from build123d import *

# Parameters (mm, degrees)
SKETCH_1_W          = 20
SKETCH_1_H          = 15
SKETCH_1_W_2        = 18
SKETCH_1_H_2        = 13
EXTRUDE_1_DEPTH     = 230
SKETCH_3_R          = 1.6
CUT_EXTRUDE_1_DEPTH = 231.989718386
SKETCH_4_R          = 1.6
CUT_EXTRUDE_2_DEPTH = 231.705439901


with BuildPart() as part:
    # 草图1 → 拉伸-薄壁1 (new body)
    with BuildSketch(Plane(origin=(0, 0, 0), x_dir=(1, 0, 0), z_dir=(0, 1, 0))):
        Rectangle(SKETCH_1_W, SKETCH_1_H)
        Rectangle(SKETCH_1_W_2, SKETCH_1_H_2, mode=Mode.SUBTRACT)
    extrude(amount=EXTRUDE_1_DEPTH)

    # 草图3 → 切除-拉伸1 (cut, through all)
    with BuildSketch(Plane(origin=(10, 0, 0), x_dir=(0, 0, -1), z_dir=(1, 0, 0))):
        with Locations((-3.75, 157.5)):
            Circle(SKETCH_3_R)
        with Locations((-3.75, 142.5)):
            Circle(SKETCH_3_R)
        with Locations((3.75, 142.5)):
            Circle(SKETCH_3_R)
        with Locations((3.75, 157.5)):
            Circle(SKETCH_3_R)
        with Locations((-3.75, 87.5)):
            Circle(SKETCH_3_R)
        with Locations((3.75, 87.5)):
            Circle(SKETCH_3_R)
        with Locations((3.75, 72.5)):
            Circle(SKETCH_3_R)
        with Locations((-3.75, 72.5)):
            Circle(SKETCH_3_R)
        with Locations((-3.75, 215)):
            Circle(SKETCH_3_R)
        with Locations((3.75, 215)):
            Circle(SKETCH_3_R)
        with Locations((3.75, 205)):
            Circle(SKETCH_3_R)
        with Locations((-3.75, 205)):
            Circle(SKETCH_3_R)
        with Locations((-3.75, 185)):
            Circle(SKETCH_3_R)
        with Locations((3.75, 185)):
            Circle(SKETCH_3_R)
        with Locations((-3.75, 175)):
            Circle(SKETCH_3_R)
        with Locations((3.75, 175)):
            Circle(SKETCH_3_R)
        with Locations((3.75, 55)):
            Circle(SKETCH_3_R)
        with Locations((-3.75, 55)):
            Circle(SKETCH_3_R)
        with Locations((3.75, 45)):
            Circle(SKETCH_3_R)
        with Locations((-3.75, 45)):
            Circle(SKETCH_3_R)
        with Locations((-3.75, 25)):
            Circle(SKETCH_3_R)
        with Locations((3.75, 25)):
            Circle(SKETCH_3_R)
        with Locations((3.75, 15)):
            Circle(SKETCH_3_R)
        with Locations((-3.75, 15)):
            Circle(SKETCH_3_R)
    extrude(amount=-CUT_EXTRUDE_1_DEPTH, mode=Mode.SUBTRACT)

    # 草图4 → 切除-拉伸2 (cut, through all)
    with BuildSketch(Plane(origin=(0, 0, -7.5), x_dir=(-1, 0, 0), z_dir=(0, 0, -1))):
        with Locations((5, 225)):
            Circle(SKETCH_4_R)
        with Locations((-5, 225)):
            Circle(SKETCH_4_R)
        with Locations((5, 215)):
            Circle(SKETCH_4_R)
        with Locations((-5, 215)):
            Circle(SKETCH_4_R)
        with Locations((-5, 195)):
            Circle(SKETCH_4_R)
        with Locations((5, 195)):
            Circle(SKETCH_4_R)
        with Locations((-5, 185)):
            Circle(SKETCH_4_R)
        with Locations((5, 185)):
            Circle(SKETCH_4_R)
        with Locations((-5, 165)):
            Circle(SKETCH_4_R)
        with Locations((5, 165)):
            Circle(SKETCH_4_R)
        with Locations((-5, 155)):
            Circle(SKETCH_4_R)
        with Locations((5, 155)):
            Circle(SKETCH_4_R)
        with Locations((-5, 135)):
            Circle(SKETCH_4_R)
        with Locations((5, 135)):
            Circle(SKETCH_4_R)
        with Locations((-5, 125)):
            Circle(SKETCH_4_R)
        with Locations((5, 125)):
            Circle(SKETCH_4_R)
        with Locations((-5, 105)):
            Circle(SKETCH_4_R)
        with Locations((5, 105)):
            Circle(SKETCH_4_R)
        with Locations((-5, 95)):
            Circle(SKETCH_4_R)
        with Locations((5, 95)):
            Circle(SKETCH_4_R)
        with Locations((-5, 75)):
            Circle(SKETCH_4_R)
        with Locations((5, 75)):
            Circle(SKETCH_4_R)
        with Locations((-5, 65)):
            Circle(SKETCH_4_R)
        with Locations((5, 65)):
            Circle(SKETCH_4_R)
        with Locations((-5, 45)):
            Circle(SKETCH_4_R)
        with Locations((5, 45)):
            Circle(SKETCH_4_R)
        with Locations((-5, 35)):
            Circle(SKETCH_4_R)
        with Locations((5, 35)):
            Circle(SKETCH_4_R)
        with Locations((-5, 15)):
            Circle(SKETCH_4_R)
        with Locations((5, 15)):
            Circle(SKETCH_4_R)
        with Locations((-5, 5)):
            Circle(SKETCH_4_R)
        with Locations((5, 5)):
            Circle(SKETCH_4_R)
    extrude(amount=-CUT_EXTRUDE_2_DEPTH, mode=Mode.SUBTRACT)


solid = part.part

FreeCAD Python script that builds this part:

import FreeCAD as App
import Part
import Sketcher


def add_polygon(sketch, points):
    """Adds a closed chain of lines whose ends are joined by coincident constraints."""
    first, n = sketch.GeometryCount, len(points)
    for a, b in zip(points, points[1:] + points[:1]):
        sketch.addGeometry(Part.LineSegment(App.Vector(*a, 0), App.Vector(*b, 0)), False)
    for i in range(n):
        sketch.addConstraint(Sketcher.Constraint("Coincident", first + i, 2, first + (i + 1) % n, 1))

doc = App.newDocument("Part")
body = doc.addObject("PartDesign::Body", "Body")

# Sketch on XZ plane
sketch1 = body.newObject("Sketcher::SketchObject", "Sketch")
sketch1.AttachmentSupport = (doc.getObject("XZ_Plane"), [""])
sketch1.MapMode = "FlatFace"
add_polygon(sketch1, [(-10, -8), (-10, 8), (10, 8), (10, -8)])  # lines 0-3
add_polygon(sketch1, [(9, 6), (-9, 6), (-9, -6), (9, -6)])  # lines 4-7
sketch1.addConstraint([
    Sketcher.Constraint("Vertical", 0),
    Sketcher.Constraint("Horizontal", 1),
    Sketcher.Constraint("Vertical", 2),
    Sketcher.Constraint("Horizontal", 3),
    Sketcher.Constraint("Horizontal", 4),
    Sketcher.Constraint("Vertical", 5),
    Sketcher.Constraint("Horizontal", 6),
    Sketcher.Constraint("Vertical", 7),
    Sketcher.Constraint("Symmetric", 0, 2, 2, 2, -1, 1),
    Sketcher.Constraint("Symmetric", 4, 2, 6, 2, -1, 1),
    Sketcher.Constraint("DistanceX", 1, 1, 1, 2, 20.0),
    Sketcher.Constraint("DistanceX", 4, 2, 4, 1, 18.0),
    Sketcher.Constraint("DistanceY", 0, 1, 0, 2, 15.0),
    Sketcher.Constraint("DistanceY", 5, 2, 5, 1, 13.0),
])
pad1 = body.newObject("PartDesign::Pad", "Pad")
pad1.Profile = sketch1
pad1.Length = 230
pad1.Reversed = True

# Sketch on YZ plane
sketch2 = body.newObject("Sketcher::SketchObject", "Sketch001")
sketch2.AttachmentSupport = (doc.getObject("YZ_Plane"), [""])
sketch2.MapMode = "FlatFace"
sketch2.AttachmentOffset = App.Placement(App.Vector(0, 0, 10), App.Rotation())
sketch2.addGeometry([
    Part.Circle(App.Vector(157.5, 3.8, 0), App.Vector(0, 0, 1), 1.6),  # 0
    Part.Circle(App.Vector(142.5, 3.8, 0), App.Vector(0, 0, 1), 1.6),  # 1
    Part.Circle(App.Vector(142.5, -3.8, 0), App.Vector(0, 0, 1), 1.6),  # 2
    Part.Circle(App.Vector(157.5, -3.8, 0), App.Vector(0, 0, 1), 1.6),  # 3
    Part.Circle(App.Vector(87.5, 3.8, 0), App.Vector(0, 0, 1), 1.6),  # 4
    Part.Circle(App.Vector(87.5, -3.8, 0), App.Vector(0, 0, 1), 1.6),  # 5
    Part.Circle(App.Vector(72.5, -3.8, 0), App.Vector(0, 0, 1), 1.6),  # 6
    Part.Circle(App.Vector(72.5, 3.8, 0), App.Vector(0, 0, 1), 1.6),  # 7
    Part.Circle(App.Vector(215, 3.8, 0), App.Vector(0, 0, 1), 1.6),  # 8
    Part.Circle(App.Vector(215, -3.8, 0), App.Vector(0, 0, 1), 1.6),  # 9
    Part.Circle(App.Vector(205, -3.8, 0), App.Vector(0, 0, 1), 1.6),  # 10
    Part.Circle(App.Vector(205, 3.8, 0), App.Vector(0, 0, 1), 1.6),  # 11
    Part.Circle(App.Vector(185, 3.8, 0), App.Vector(0, 0, 1), 1.6),  # 12
    Part.Circle(App.Vector(185, -3.8, 0), App.Vector(0, 0, 1), 1.6),  # 13
    Part.Circle(App.Vector(175, 3.8, 0), App.Vector(0, 0, 1), 1.6),  # 14
    Part.Circle(App.Vector(175, -3.8, 0), App.Vector(0, 0, 1), 1.6),  # 15
    Part.Circle(App.Vector(55, -3.8, 0), App.Vector(0, 0, 1), 1.6),  # 16
    Part.Circle(App.Vector(55, 3.8, 0), App.Vector(0, 0, 1), 1.6),  # 17
    Part.Circle(App.Vector(45, -3.8, 0), App.Vector(0, 0, 1), 1.6),  # 18
    Part.Circle(App.Vector(45, 3.8, 0), App.Vector(0, 0, 1), 1.6),  # 19
    Part.Circle(App.Vector(25, 3.8, 0), App.Vector(0, 0, 1), 1.6),  # 20
    Part.Circle(App.Vector(25, -3.8, 0), App.Vector(0, 0, 1), 1.6),  # 21
    Part.Circle(App.Vector(15, -3.8, 0), App.Vector(0, 0, 1), 1.6),  # 22
    Part.Circle(App.Vector(15, 3.8, 0), App.Vector(0, 0, 1), 1.6),  # 23
], False)
sketch2.addConstraint([
    Sketcher.Constraint("Equal", 0, 1),
    Sketcher.Constraint("Equal", 1, 2),
    Sketcher.Constraint("Equal", 2, 3),
    Sketcher.Constraint("Equal", 3, 4),
    Sketcher.Constraint("Equal", 4, 5),
    Sketcher.Constraint("Equal", 5, 6),
    Sketcher.Constraint("Equal", 6, 7),
    Sketcher.Constraint("Equal", 7, 8),
    Sketcher.Constraint("Equal", 8, 9),
    Sketcher.Constraint("Equal", 9, 10),
    Sketcher.Constraint("Equal", 10, 11),
    Sketcher.Constraint("Equal", 11, 12),
    Sketcher.Constraint("Equal", 12, 13),
    Sketcher.Constraint("Equal", 13, 14),
    Sketcher.Constraint("Equal", 14, 15),
    Sketcher.Constraint("Equal", 15, 16),
    Sketcher.Constraint("Equal", 16, 17),
    Sketcher.Constraint("Equal", 17, 18),
    Sketcher.Constraint("Equal", 18, 19),
    Sketcher.Constraint("Equal", 19, 20),
    Sketcher.Constraint("Equal", 20, 21),
    Sketcher.Constraint("Equal", 21, 22),
    Sketcher.Constraint("Equal", 22, 23),
    Sketcher.Constraint("Symmetric", 1, 3, 2, 3, -1),
    Sketcher.Constraint("Symmetric", 0, 3, 3, 3, -1),
    Sketcher.Constraint("Symmetric", 4, 3, 5, 3, -1),
    Sketcher.Constraint("Symmetric", 6, 3, 7, 3, -1),
    Sketcher.Constraint("Symmetric", 8, 3, 9, 3, -1),
    Sketcher.Constraint("Symmetric", 10, 3, 11, 3, -1),
    Sketcher.Constraint("Symmetric", 12, 3, 13, 3, -1),
    Sketcher.Constraint("Symmetric", 14, 3, 15, 3, -1),
    Sketcher.Constraint("Symmetric", 16, 3, 17, 3, -1),
    Sketcher.Constraint("Symmetric", 18, 3, 19, 3, -1),
    Sketcher.Constraint("Symmetric", 20, 3, 21, 3, -1),
    Sketcher.Constraint("Symmetric", 22, 3, 23, 3, -1),
    Sketcher.Constraint("Horizontal", 0, 3, 1, 3),
    Sketcher.Constraint("Horizontal", 1, 3, 4, 3),
    Sketcher.Constraint("Horizontal", 5, 3, 6, 3),
    Sketcher.Constraint("Horizontal", 7, 3, 8, 3),
    Sketcher.Constraint("Horizontal", 9, 3, 10, 3),
    Sketcher.Constraint("Horizontal", 11, 3, 12, 3),
    Sketcher.Constraint("Horizontal", 12, 3, 14, 3),
    Sketcher.Constraint("Horizontal", 15, 3, 16, 3),
    Sketcher.Constraint("Horizontal", 16, 3, 18, 3),
    Sketcher.Constraint("Horizontal", 19, 3, 20, 3),
    Sketcher.Constraint("Horizontal", 21, 3, 22, 3),
    Sketcher.Constraint("Diameter", 0, 3.2),
    Sketcher.Constraint("DistanceX", -1, 1, 8, 3, 215.0),
    Sketcher.Constraint("DistanceX", -1, 1, 10, 3, 205.0),
    Sketcher.Constraint("DistanceX", -1, 1, 12, 3, 185.0),
    Sketcher.Constraint("DistanceX", -1, 1, 14, 3, 175.0),
    Sketcher.Constraint("DistanceX", -1, 1, 16, 3, 55.0),
    Sketcher.Constraint("DistanceX", -1, 1, 18, 3, 45.0),
    Sketcher.Constraint("DistanceX", -1, 1, 20, 3, 25.0),
    Sketcher.Constraint("DistanceX", -1, 1, 22, 3, 15.0),
    Sketcher.Constraint("DistanceX", 1, 3, 0, 3, 15.0),
    Sketcher.Constraint("DistanceX", 4, 3, 1, 3, 55.0),
    Sketcher.Constraint("DistanceX", 6, 3, 5, 3, 15.0),
    Sketcher.Constraint("DistanceX", -1, 1, 0, 3, 157.5),
    Sketcher.Constraint("DistanceY", 2, 3, 1, 3, 7.5),
])
pocket1 = body.newObject("PartDesign::Pocket", "Pocket")
pocket1.Profile = sketch2
pocket1.Type = "ThroughAll"

# Sketch on XY plane
sketch3 = body.newObject("Sketcher::SketchObject", "Sketch002")
sketch3.AttachmentSupport = (doc.getObject("XY_Plane"), [""])
sketch3.MapMode = "FlatFace"
sketch3.AttachmentOffset = App.Placement(App.Vector(0, 0, -7.5), App.Rotation())
sketch3.addGeometry([
    Part.Circle(App.Vector(-5, 225, 0), App.Vector(0, 0, 1), 1.6),  # 0
    Part.Circle(App.Vector(5, 225, 0), App.Vector(0, 0, 1), 1.6),  # 1
    Part.Circle(App.Vector(-5, 215, 0), App.Vector(0, 0, 1), 1.6),  # 2
    Part.Circle(App.Vector(5, 215, 0), App.Vector(0, 0, 1), 1.6),  # 3
    Part.Circle(App.Vector(5, 195, 0), App.Vector(0, 0, 1), 1.6),  # 4
    Part.Circle(App.Vector(-5, 195, 0), App.Vector(0, 0, 1), 1.6),  # 5
    Part.Circle(App.Vector(5, 185, 0), App.Vector(0, 0, 1), 1.6),  # 6
    Part.Circle(App.Vector(-5, 185, 0), App.Vector(0, 0, 1), 1.6),  # 7
    Part.Circle(App.Vector(5, 165, 0), App.Vector(0, 0, 1), 1.6),  # 8
    Part.Circle(App.Vector(-5, 165, 0), App.Vector(0, 0, 1), 1.6),  # 9
    Part.Circle(App.Vector(5, 155, 0), App.Vector(0, 0, 1), 1.6),  # 10
    Part.Circle(App.Vector(-5, 155, 0), App.Vector(0, 0, 1), 1.6),  # 11
    Part.Circle(App.Vector(5, 135, 0), App.Vector(0, 0, 1), 1.6),  # 12
    Part.Circle(App.Vector(-5, 135, 0), App.Vector(0, 0, 1), 1.6),  # 13
    Part.Circle(App.Vector(5, 125, 0), App.Vector(0, 0, 1), 1.6),  # 14
    Part.Circle(App.Vector(-5, 125, 0), App.Vector(0, 0, 1), 1.6),  # 15
    Part.Circle(App.Vector(5, 105, 0), App.Vector(0, 0, 1), 1.6),  # 16
    Part.Circle(App.Vector(-5, 105, 0), App.Vector(0, 0, 1), 1.6),  # 17
    Part.Circle(App.Vector(5, 95, 0), App.Vector(0, 0, 1), 1.6),  # 18
    Part.Circle(App.Vector(-5, 95, 0), App.Vector(0, 0, 1), 1.6),  # 19
    Part.Circle(App.Vector(5, 75, 0), App.Vector(0, 0, 1), 1.6),  # 20
    Part.Circle(App.Vector(-5, 75, 0), App.Vector(0, 0, 1), 1.6),  # 21
    Part.Circle(App.Vector(5, 65, 0), App.Vector(0, 0, 1), 1.6),  # 22
    Part.Circle(App.Vector(-5, 65, 0), App.Vector(0, 0, 1), 1.6),  # 23
    Part.Circle(App.Vector(5, 45, 0), App.Vector(0, 0, 1), 1.6),  # 24
    Part.Circle(App.Vector(-5, 45, 0), App.Vector(0, 0, 1), 1.6),  # 25
    Part.Circle(App.Vector(5, 35, 0), App.Vector(0, 0, 1), 1.6),  # 26
    Part.Circle(App.Vector(-5, 35, 0), App.Vector(0, 0, 1), 1.6),  # 27
    Part.Circle(App.Vector(5, 15, 0), App.Vector(0, 0, 1), 1.6),  # 28
    Part.Circle(App.Vector(-5, 15, 0), App.Vector(0, 0, 1), 1.6),  # 29
    Part.Circle(App.Vector(5, 5, 0), App.Vector(0, 0, 1), 1.6),  # 30
    Part.Circle(App.Vector(-5, 5, 0), App.Vector(0, 0, 1), 1.6),  # 31
], False)
sketch3.addConstraint([
    Sketcher.Constraint("Equal", 0, 1),
    Sketcher.Constraint("Equal", 1, 2),
    Sketcher.Constraint("Equal", 2, 3),
    Sketcher.Constraint("Equal", 3, 4),
    Sketcher.Constraint("Equal", 4, 5),
    Sketcher.Constraint("Equal", 5, 6),
    Sketcher.Constraint("Equal", 6, 7),
    Sketcher.Constraint("Equal", 7, 8),
    Sketcher.Constraint("Equal", 8, 9),
    Sketcher.Constraint("Equal", 9, 10),
    Sketcher.Constraint("Equal", 10, 11),
    Sketcher.Constraint("Equal", 11, 12),
    Sketcher.Constraint("Equal", 12, 13),
    Sketcher.Constraint("Equal", 13, 14),
    Sketcher.Constraint("Equal", 14, 15),
    Sketcher.Constraint("Equal", 15, 16),
    Sketcher.Constraint("Equal", 16, 17),
    Sketcher.Constraint("Equal", 17, 18),
    Sketcher.Constraint("Equal", 18, 19),
    Sketcher.Constraint("Equal", 19, 20),
    Sketcher.Constraint("Equal", 20, 21),
    Sketcher.Constraint("Equal", 21, 22),
    Sketcher.Constraint("Equal", 22, 23),
    Sketcher.Constraint("Equal", 23, 24),
    Sketcher.Constraint("Equal", 24, 25),
    Sketcher.Constraint("Equal", 25, 26),
    Sketcher.Constraint("Equal", 26, 27),
    Sketcher.Constraint("Equal", 27, 28),
    Sketcher.Constraint("Equal", 28, 29),
    Sketcher.Constraint("Equal", 29, 30),
    Sketcher.Constraint("Equal", 30, 31),
    Sketcher.Constraint("Symmetric", 0, 3, 1, 3, -2),
    Sketcher.Constraint("Symmetric", 2, 3, 3, 3, -2),
    Sketcher.Constraint("Symmetric", 4, 3, 5, 3, -2),
    Sketcher.Constraint("Symmetric", 6, 3, 7, 3, -2),
    Sketcher.Constraint("Symmetric", 8, 3, 9, 3, -2),
    Sketcher.Constraint("Symmetric", 10, 3, 11, 3, -2),
    Sketcher.Constraint("Symmetric", 12, 3, 13, 3, -2),
    Sketcher.Constraint("Symmetric", 14, 3, 15, 3, -2),
    Sketcher.Constraint("Symmetric", 16, 3, 17, 3, -2),
    Sketcher.Constraint("Symmetric", 18, 3, 19, 3, -2),
    Sketcher.Constraint("Symmetric", 20, 3, 21, 3, -2),
    Sketcher.Constraint("Symmetric", 22, 3, 23, 3, -2),
    Sketcher.Constraint("Symmetric", 24, 3, 25, 3, -2),
    Sketcher.Constraint("Symmetric", 26, 3, 27, 3, -2),
    Sketcher.Constraint("Symmetric", 28, 3, 29, 3, -2),
    Sketcher.Constraint("Symmetric", 30, 3, 31, 3, -2),
    Sketcher.Constraint("Vertical", 0, 3, 2, 3),
    Sketcher.Constraint("Vertical", 3, 3, 4, 3),
    Sketcher.Constraint("Vertical", 4, 3, 6, 3),
    Sketcher.Constraint("Vertical", 6, 3, 8, 3),
    Sketcher.Constraint("Vertical", 8, 3, 10, 3),
    Sketcher.Constraint("Vertical", 10, 3, 12, 3),
    Sketcher.Constraint("Vertical", 12, 3, 14, 3),
    Sketcher.Constraint("Vertical", 14, 3, 16, 3),
    Sketcher.Constraint("Vertical", 16, 3, 18, 3),
    Sketcher.Constraint("Vertical", 18, 3, 20, 3),
    Sketcher.Constraint("Vertical", 20, 3, 22, 3),
    Sketcher.Constraint("Vertical", 22, 3, 24, 3),
    Sketcher.Constraint("Vertical", 24, 3, 26, 3),
    Sketcher.Constraint("Vertical", 26, 3, 28, 3),
    Sketcher.Constraint("Vertical", 28, 3, 30, 3),
    Sketcher.Constraint("Diameter", 0, 3.2),
    Sketcher.Constraint("DistanceX", 0, 3, -1, 1, 5.0),
    Sketcher.Constraint("DistanceY", -1, 1, 0, 3, 225.0),
    Sketcher.Constraint("DistanceY", -1, 1, 2, 3, 215.0),
    Sketcher.Constraint("DistanceY", -1, 1, 4, 3, 195.0),
    Sketcher.Constraint("DistanceY", -1, 1, 6, 3, 185.0),
    Sketcher.Constraint("DistanceY", -1, 1, 8, 3, 165.0),
    Sketcher.Constraint("DistanceY", -1, 1, 10, 3, 155.0),
    Sketcher.Constraint("DistanceY", -1, 1, 12, 3, 135.0),
    Sketcher.Constraint("DistanceY", -1, 1, 14, 3, 125.0),
    Sketcher.Constraint("DistanceY", -1, 1, 16, 3, 105.0),
    Sketcher.Constraint("DistanceY", -1, 1, 18, 3, 95.0),
    Sketcher.Constraint("DistanceY", -1, 1, 20, 3, 75.0),
    Sketcher.Constraint("DistanceY", -1, 1, 22, 3, 65.0),
    Sketcher.Constraint("DistanceY", -1, 1, 24, 3, 45.0),
    Sketcher.Constraint("DistanceY", -1, 1, 26, 3, 35.0),
    Sketcher.Constraint("DistanceY", -1, 1, 28, 3, 15.0),
    Sketcher.Constraint("DistanceY", -1, 1, 30, 3, 5.0),
])
pocket2 = body.newObject("PartDesign::Pocket", "Pocket001")
pocket2.Profile = sketch3
pocket2.Type = "ThroughAll"
pocket2.Reversed = True

doc.recompute()
